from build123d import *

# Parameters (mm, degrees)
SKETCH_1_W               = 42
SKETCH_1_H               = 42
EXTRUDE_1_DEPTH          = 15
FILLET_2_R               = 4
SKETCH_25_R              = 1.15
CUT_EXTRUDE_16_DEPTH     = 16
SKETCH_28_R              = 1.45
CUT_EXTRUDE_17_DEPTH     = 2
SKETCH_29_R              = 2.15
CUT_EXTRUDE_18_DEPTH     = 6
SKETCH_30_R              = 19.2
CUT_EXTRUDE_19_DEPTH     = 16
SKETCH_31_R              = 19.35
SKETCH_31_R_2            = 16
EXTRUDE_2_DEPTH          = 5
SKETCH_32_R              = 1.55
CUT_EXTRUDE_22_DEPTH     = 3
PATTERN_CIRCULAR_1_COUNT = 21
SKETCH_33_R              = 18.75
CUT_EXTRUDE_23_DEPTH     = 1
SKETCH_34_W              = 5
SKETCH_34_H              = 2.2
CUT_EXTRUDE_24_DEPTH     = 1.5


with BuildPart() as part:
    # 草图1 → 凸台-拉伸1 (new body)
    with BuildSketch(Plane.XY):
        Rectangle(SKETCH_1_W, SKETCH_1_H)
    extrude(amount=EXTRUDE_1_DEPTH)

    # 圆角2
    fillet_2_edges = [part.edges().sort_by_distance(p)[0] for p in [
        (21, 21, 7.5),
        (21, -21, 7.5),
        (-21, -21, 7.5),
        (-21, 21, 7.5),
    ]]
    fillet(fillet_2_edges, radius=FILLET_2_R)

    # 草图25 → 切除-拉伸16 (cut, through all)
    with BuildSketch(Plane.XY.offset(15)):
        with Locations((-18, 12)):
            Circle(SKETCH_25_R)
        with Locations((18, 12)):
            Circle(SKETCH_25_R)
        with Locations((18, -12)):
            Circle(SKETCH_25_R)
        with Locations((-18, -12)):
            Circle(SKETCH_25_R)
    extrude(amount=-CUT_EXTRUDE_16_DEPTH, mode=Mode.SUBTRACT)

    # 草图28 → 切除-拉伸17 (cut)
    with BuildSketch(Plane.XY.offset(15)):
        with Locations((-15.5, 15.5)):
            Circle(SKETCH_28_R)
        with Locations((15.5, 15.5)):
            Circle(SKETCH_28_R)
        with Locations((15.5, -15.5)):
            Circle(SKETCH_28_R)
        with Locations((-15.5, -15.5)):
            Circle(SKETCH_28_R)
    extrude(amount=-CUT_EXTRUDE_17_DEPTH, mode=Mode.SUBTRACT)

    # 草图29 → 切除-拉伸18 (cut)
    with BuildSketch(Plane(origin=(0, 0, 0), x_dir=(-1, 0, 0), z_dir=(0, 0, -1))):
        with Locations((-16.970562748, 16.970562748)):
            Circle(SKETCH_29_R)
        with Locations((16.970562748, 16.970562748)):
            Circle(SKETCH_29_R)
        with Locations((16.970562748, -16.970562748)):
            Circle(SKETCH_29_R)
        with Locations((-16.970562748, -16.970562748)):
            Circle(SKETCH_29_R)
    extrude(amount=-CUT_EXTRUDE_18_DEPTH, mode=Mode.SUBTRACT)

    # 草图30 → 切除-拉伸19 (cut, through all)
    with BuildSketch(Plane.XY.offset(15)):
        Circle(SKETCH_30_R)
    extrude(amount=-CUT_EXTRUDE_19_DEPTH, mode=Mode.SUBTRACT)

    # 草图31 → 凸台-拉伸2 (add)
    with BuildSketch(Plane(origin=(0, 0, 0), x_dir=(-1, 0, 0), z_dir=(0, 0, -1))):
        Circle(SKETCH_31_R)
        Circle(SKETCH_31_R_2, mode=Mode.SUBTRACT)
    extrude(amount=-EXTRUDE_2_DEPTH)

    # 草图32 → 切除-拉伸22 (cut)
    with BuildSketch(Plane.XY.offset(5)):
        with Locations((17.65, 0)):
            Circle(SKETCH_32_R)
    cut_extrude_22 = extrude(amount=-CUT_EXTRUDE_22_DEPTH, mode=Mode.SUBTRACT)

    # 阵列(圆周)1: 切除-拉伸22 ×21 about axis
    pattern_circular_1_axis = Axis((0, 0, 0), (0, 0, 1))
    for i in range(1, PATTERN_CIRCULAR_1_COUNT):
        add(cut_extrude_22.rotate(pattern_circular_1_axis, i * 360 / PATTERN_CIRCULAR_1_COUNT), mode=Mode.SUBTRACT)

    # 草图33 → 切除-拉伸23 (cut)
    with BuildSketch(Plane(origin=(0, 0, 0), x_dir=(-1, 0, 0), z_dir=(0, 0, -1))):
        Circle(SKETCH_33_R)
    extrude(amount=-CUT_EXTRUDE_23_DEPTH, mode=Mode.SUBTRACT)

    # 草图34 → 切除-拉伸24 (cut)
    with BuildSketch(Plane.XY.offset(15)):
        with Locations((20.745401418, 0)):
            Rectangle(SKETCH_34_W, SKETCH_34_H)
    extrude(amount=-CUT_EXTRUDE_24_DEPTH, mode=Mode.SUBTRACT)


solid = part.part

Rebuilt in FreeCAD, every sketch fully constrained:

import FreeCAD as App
import Part
import Sketcher
from FreeCAD import Vector


def edges_at(feature, points):
    """Names of the edges that pass closest to the given points."""
    edges = feature.Shape.Edges
    near = lambda p: min(range(len(edges)), key=lambda i: edges[i].distToShape(Part.Vertex(*p))[0])
    return sorted({f"Edge{near(p) + 1}" for p in points})


def add_polygon(sketch, points):
    """Adds a closed chain of lines whose ends are joined by coincident constraints."""
    first, n = sketch.GeometryCount, len(points)
    for a, b in zip(points, points[1:] + points[:1]):
        sketch.addGeometry(Part.LineSegment(App.Vector(*a, 0), App.Vector(*b, 0)), False)
    for i in range(n):
        sketch.addConstraint(Sketcher.Constraint("Coincident", first + i, 2, first + (i + 1) % n, 1))

doc = App.newDocument("Part")
params = doc.addObject("Spreadsheet::Sheet", "Params")
for row, (alias, value) in enumerate([
    ("sketch1_width", "42 mm"),
    ("pad1_length", "15 mm"),
    ("fillet_radius", "4 mm"),
    ("sketch2_diameter", "2.3 mm"),
    ("sketch3_diameter", "2.9 mm"),
    ("pocket2_length", "2 mm"),
    ("sketch4_diameter", "4.3 mm"),
    ("pocket3_length", "6 mm"),
    ("sketch5_diameter", "38.4 mm"),
    ("sketch6_diameter", "32 mm"),
    ("sketch6_diameter2", "38.7 mm"),
    ("pad2_length", "5 mm"),
    ("sketch7_diameter", "3.1 mm"),
    ("pocket5_length", "3 mm"),
    ("sketch8_diameter", "37.5 mm"),
    ("pocket6_length", "1 mm"),
    ("sketch9_width", "5 mm"),
    ("sketch9_height", "2.2 mm"),
    ("pocket7_length", "1.5 mm"),
], start=1):
    params.set(f"A{row}", alias)
    params.set(f"B{row}", "=" + value)
    params.setAlias(f"B{row}", alias)

body = doc.addObject("PartDesign::Body", "Body")

# Sketch on XY plane
sketch1 = body.newObject("Sketcher::SketchObject", "Sketch")
sketch1.AttachmentSupport = (doc.getObject("XY_Plane"), [""])
sketch1.MapMode = "FlatFace"
add_polygon(sketch1, [(-21, 21), (-21, -21), (21, -21), (21, 21)])  # lines 0-3
sketch1.addConstraint([
    Sketcher.Constraint("Vertical", 0),
    Sketcher.Constraint("Horizontal", 1),
    Sketcher.Constraint("Vertical", 2),
    Sketcher.Constraint("Horizontal", 3),
    Sketcher.Constraint("Symmetric", 0, 2, 2, 2, -1, 1),
    Sketcher.Constraint("Equal", 3, 0),
    Sketcher.Constraint("DistanceX", 1, 1, 1, 2, 42.0),
])
sketch1.setExpression("Constraints[10]", "Params.sketch1_width")
pad1 = body.newObject("PartDesign::Pad", "Pad")
pad1.Profile = sketch1
pad1.setExpression("Length", "Params.pad1_length")
doc.recompute()

fillet = body.newObject("PartDesign::Fillet", "Fillet")
fillet.Base = (pad1, edges_at(pad1, [
    (21, 21, 7.5),
    (21, -21, 7.5),
    (-21, -21, 7.5),
    (-21, 21, 7.5),
]))
fillet.setExpression("Radius", "Params.fillet_radius")

# Sketch on XY plane
sketch2 = body.newObject("Sketcher::SketchObject", "Sketch001")
sketch2.AttachmentSupport = (doc.getObject("XY_Plane"), [""])
sketch2.MapMode = "FlatFace"
sketch2.AttachmentOffset = App.Placement(Vector(0, 0, 15), App.Rotation())
sketch2.addGeometry([
    Part.Circle(Vector(-18, 12, 0), Vector(0, 0, 1), 1.1),
    Part.Circle(Vector(18, 12, 0), Vector(0, 0, 1), 1.1),
    Part.Circle(Vector(18, -12, 0), Vector(0, 0, 1), 1.1),
    Part.Circle(Vector(-18, -12, 0), Vector(0, 0, 1), 1.1),
], False)
sketch2.addConstraint([
    Sketcher.Constraint("Equal", 0, 1),
    Sketcher.Constraint("Equal", 1, 2),
    Sketcher.Constraint("Equal", 2, 3),
    Sketcher.Constraint("Symmetric", 0, 3, 2, 3, -1, 1),
    Sketcher.Constraint("Symmetric", 1, 3, 3, 3, -1, 1),
    Sketcher.Constraint("Symmetric", 0, 3, 1, 3, -2),
    Sketcher.Constraint("Diameter", 0, 2.3),
    Sketcher.Constraint("DistanceX", 0, 3, -1, 1, 18.0),
    Sketcher.Constraint("DistanceY", -1, 1, 0, 3, 12.0),
])
sketch2.setExpression("Constraints[6]", "Params.sketch2_diameter")
pocket1 = body.newObject("PartDesign::Pocket", "Pocket")
pocket1.Profile = sketch2
pocket1.Type = "ThroughAll"

# Sketch on XY plane
sketch3 = body.newObject("Sketcher::SketchObject", "Sketch002")
sketch3.AttachmentSupport = (doc.getObject("XY_Plane"), [""])
sketch3.MapMode = "FlatFace"
sketch3.AttachmentOffset = App.Placement(Vector(0, 0, 15), App.Rotation())
sketch3.addGeometry([
    Part.Circle(Vector(-15.5, 15.5, 0), Vector(0, 0, 1), 1.4),
    Part.Circle(Vector(15.5, 15.5, 0), Vector(0, 0, 1), 1.4),
    Part.Circle(Vector(15.5, -15.5, 0), Vector(0, 0, 1), 1.4),
    Part.Circle(Vector(-15.5, -15.5, 0), Vector(0, 0, 1), 1.4),
], False)
sketch3.addConstraint([
    Sketcher.Constraint("Equal", 0, 1),
    Sketcher.Constraint("Equal", 1, 2),
    Sketcher.Constraint("Equal", 2, 3),
    Sketcher.Constraint("Symmetric", 0, 3, 2, 3, -1, 1),
    Sketcher.Constraint("Symmetric", 1, 3, 3, 3, -1, 1),
    Sketcher.Constraint("Symmetric", 0, 3, 1, 3, -2),
    Sketcher.Constraint("Diameter", 0, 2.9),
    Sketcher.Constraint("DistanceX", 0, 3, 1, 3, 31.0),
    Sketcher.Constraint("DistanceY", 2, 3, 1, 3, 31.0),
])
sketch3.setExpression("Constraints[6]", "Params.sketch3_diameter")
pocket2 = body.newObject("PartDesign::Pocket", "Pocket001")
pocket2.Profile = sketch3
pocket2.setExpression("Length", "Params.pocket2_length")

# Sketch on XY plane
sketch4 = body.newObject("Sketcher::SketchObject", "Sketch003")
sketch4.AttachmentSupport = (doc.getObject("XY_Plane"), [""])
sketch4.MapMode = "FlatFace"
sketch4.addGeometry([
    Part.Circle(Vector(17, 17, 0), Vector(0, 0, 1), 2.1),
    Part.Circle(Vector(-17, 17, 0), Vector(0, 0, 1), 2.1),
    Part.Circle(Vector(-17, -17, 0), Vector(0, 0, 1), 2.1),
    Part.Circle(Vector(17, -17, 0), Vector(0, 0, 1), 2.1),
], False)
sketch4.addConstraint([
    Sketcher.Constraint("Equal", 0, 1),
    Sketcher.Constraint("Equal", 1, 2),
    Sketcher.Constraint("Equal", 2, 3),
    Sketcher.Constraint("Symmetric", 0, 3, 2, 3, -1, 1),
    Sketcher.Constraint("Symmetric", 1, 3, 3, 3, -1, 1),
    Sketcher.Constraint("Symmetric", 0, 3, 1, 3, -2),
    Sketcher.Constraint("Diameter", 0, 4.3),
    Sketcher.Constraint("DistanceX", -1, 1, 0, 3, 16.970563),
    Sketcher.Constraint("DistanceY", -1, 1, 0, 3, 16.970563),
])
sketch4.setExpression("Constraints[6]", "Params.sketch4_diameter")
pocket3 = body.newObject("PartDesign::Pocket", "Pocket002")
pocket3.Profile = sketch4
pocket3.setExpression("Length", "Params.pocket3_length")
pocket3.Reversed = True

# Sketch on XY plane
sketch5 = body.newObject("Sketcher::SketchObject", "Sketch004")
sketch5.AttachmentSupport = (doc.getObject("XY_Plane"), [""])
sketch5.MapMode = "FlatFace"
sketch5.AttachmentOffset = App.Placement(Vector(0, 0, 15), App.Rotation())
sketch5.addGeometry(Part.Circle(Vector(0, 0, 0), Vector(0, 0, 1), 19), False)
sketch5.addConstraint([
    Sketcher.Constraint("Coincident", 0, 3, -1, 1),
    Sketcher.Constraint("Diameter", 0, 38.4),
])
sketch5.setExpression("Constraints[1]", "Params.sketch5_diameter")
pocket4 = body.newObject("PartDesign::Pocket", "Pocket003")
pocket4.Profile = sketch5
pocket4.Type = "ThroughAll"

# Sketch on XY plane
sketch6 = body.newObject("Sketcher::SketchObject", "Sketch005")
sketch6.AttachmentSupport = (doc.getObject("XY_Plane"), [""])
sketch6.MapMode = "FlatFace"
sketch6.addGeometry([
    Part.Circle(Vector(0, 0, 0), Vector(0, 0, 1), 19),
    Part.Circle(Vector(0, 0, 0), Vector(0, 0, 1), 16),
], False)
sketch6.addConstraint([
    Sketcher.Constraint("Coincident", 0, 3, -1, 1),
    Sketcher.Constraint("Coincident", 1, 3, -1, 1),
    Sketcher.Constraint("Diameter", 1, 32.0),
    Sketcher.Constraint("Diameter", 0, 38.7),
])
sketch6.setExpression("Constraints[2]", "Params.sketch6_diameter")
sketch6.setExpression("Constraints[3]", "Params.sketch6_diameter2")
pad2 = body.newObject("PartDesign::Pad", "Pad001")
pad2.Profile = sketch6
pad2.setExpression("Length", "Params.pad2_length")

# Sketch on XY plane
sketch7 = body.newObject("Sketcher::SketchObject", "Sketch006")
sketch7.AttachmentSupport = (doc.getObject("XY_Plane"), [""])
sketch7.MapMode = "FlatFace"
sketch7.AttachmentOffset = App.Placement(Vector(0, 0, 5), App.Rotation())
sketch7.addGeometry(Part.Circle(Vector(17.6, 0, 0), Vector(0, 0, 1), 1.6), False)
sketch7.addConstraint([
    Sketcher.Constraint("PointOnObject", 0, 3, -1),
    Sketcher.Constraint("Diameter", 0, 3.1),
    Sketcher.Constraint("DistanceX", -1, 1, 0, 3, 17.65),
])
sketch7.setExpression("Constraints[1]", "Params.sketch7_diameter")
pocket5 = body.newObject("PartDesign::Pocket", "Pocket004")
pocket5.Profile = sketch7
pocket5.setExpression("Length", "Params.pocket5_length")
doc.recompute()

polarpattern = body.newObject("PartDesign::PolarPattern", "PolarPattern")
polarpattern.Originals = [pocket5]
polarpattern.Axis = (doc.getObject("Z_Axis"), [""])
polarpattern.Angle = 360
polarpattern.Occurrences = 21
body.Tip = polarpattern

# Sketch on XY plane
sketch8 = body.newObject("Sketcher::SketchObject", "Sketch007")
sketch8.AttachmentSupport = (doc.getObject("XY_Plane"), [""])
sketch8.MapMode = "FlatFace"
sketch8.addGeometry(Part.Circle(Vector(0, 0, 0), Vector(0, 0, 1), 19), False)
sketch8.addConstraint([
    Sketcher.Constraint("Coincident", 0, 3, -1, 1),
    Sketcher.Constraint("Diameter", 0, 37.5),
])
sketch8.setExpression("Constraints[1]", "Params.sketch8_diameter")
pocket6 = body.newObject("PartDesign::Pocket", "Pocket005")
pocket6.Profile = sketch8
pocket6.setExpression("Length", "Params.pocket6_length")
pocket6.Reversed = True

# Sketch on XY plane
sketch9 = body.newObject("Sketcher::SketchObject", "Sketch008")
sketch9.AttachmentSupport = (doc.getObject("XY_Plane"), [""])
sketch9.MapMode = "FlatFace"
sketch9.AttachmentOffset = App.Placement(Vector(0, 0, 15), App.Rotation())
add_polygon(sketch9, [(18.2, 1.1), (18.2, -1.1), (23.2, -1.1), (23.2, 1.1)])  # lines 0-3
sketch9.addConstraint([
    Sketcher.Constraint("Vertical", 0),
    Sketcher.Constraint("Horizontal", 1),
    Sketcher.Constraint("Vertical", 2),
    Sketcher.Constraint("Horizontal", 3),
    Sketcher.Constraint("DistanceX", 1, 1, 1, 2, 5.0),
    Sketcher.Constraint("DistanceY", 0, 2, 0, 1, 2.2),
    Sketcher.Constraint("DistanceY", 0, 2, -1, 1, 1.1),
    Sketcher.Constraint("DistanceX", -1, 1, 0, 2, 18.245401),
])
sketch9.setExpression("Constraints[8]", "Params.sketch9_width")
sketch9.setExpression("Constraints[9]", "Params.sketch9_height")
pocket7 = body.newObject("PartDesign::Pocket", "Pocket006")
pocket7.Profile = sketch9
pocket7.setExpression("Length", "Params.pocket7_length")

doc.recompute()
